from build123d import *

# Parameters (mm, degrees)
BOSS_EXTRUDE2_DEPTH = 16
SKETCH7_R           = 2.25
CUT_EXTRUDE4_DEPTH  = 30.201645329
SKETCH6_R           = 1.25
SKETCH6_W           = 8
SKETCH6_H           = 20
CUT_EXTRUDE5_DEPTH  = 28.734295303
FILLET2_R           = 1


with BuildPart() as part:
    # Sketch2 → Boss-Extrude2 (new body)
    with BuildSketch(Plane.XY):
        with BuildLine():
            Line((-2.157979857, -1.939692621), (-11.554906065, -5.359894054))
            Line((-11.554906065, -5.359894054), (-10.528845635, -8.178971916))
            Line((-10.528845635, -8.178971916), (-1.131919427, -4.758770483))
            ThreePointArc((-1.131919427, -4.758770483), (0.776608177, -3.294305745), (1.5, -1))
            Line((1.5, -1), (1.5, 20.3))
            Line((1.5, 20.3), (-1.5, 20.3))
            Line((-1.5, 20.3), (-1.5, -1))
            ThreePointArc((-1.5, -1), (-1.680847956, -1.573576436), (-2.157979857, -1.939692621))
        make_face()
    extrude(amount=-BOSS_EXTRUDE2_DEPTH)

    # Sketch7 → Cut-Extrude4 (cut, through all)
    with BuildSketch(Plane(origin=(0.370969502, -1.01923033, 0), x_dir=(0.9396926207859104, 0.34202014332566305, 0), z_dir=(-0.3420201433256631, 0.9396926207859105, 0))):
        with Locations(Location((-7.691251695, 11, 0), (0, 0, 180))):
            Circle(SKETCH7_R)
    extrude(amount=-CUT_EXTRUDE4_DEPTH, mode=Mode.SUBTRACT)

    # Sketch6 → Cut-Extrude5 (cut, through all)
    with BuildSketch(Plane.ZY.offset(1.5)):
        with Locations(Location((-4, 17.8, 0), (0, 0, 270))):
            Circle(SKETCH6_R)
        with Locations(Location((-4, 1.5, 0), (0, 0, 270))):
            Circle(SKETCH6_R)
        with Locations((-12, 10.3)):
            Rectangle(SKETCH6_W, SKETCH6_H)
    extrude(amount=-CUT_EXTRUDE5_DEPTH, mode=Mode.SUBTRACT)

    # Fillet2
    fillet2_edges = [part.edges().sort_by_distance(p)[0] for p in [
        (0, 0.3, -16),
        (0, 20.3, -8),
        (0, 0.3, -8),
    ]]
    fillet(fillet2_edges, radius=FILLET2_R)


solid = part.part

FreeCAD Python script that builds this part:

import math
import FreeCAD as App
import Part
import Sketcher
from FreeCAD import Vector
Q = App.Units.Quantity


def edges_at(feature, points):
    """Names of the edges that pass closest to the given points."""
    edges = feature.Shape.Edges
    near = lambda p: min(range(len(edges)), key=lambda i: edges[i].distToShape(Part.Vertex(*p))[0])
    return sorted({f"Edge{near(p) + 1}" for p in points})

doc = App.newDocument("Part")
body = doc.addObject("PartDesign::Body", "Body")

# Sketch on XY plane
sketch1 = body.newObject("Sketcher::SketchObject", "Sketch")
sketch1.AttachmentSupport = (doc.getObject("XY_Plane"), [""])
sketch1.MapMode = "FlatFace"
sketch1.addGeometry([
    Part.LineSegment(Vector(-2.2, -1.9, 0), Vector(-11.6, -5.4, 0)),  # 0
    Part.LineSegment(Vector(-11.6, -5.4, 0), Vector(-10.5, -8.2, 0)),  # 1
    Part.LineSegment(Vector(-10.5, -8.2, 0), Vector(-1.1, -4.8, 0)),  # 2
    Part.ArcOfCircle(Part.Circle(Vector(-2.5, -1, 0), Vector(0, 0, 1), 4), math.radians(-70), math.radians(0)),  # 3
    Part.LineSegment(Vector(1.5, -1, 0), Vector(1.5, 20.3, 0)),  # 4
    Part.LineSegment(Vector(1.5, 20.3, 0), Vector(-1.5, 20.3, 0)),  # 5
    Part.LineSegment(Vector(-1.5, 20.3, 0), Vector(-1.5, -1, 0)),  # 6
    Part.ArcOfCircle(Part.Circle(Vector(-2.5, -1, 0), Vector(0, 0, 1), 1), math.radians(-70), math.radians(0)),  # 7
], False)
sketch1.addConstraint([
    Sketcher.Constraint("Coincident", 0, 2, 1, 1),
    Sketcher.Constraint("Coincident", 1, 2, 2, 1),
    Sketcher.Constraint("Tangent", 2, 2, 3, 1),
    Sketcher.Constraint("Tangent", 3, 2, 4, 1),
    Sketcher.Constraint("Coincident", 4, 2, 5, 1),
    Sketcher.Constraint("Coincident", 5, 2, 6, 1),
    Sketcher.Constraint("Tangent", 6, 2, 7, 2),
    Sketcher.Constraint("Tangent", 7, 1, 0, 1),
    Sketcher.Constraint("Vertical", 4),
    Sketcher.Constraint("Horizontal", 5),
    Sketcher.Constraint("Vertical", 6),
    Sketcher.Constraint("Coincident", 7, 3, 3, 3),
    Sketcher.Constraint("Perpendicular", 0, 1),
    Sketcher.Constraint("Perpendicular", 1, 2),
    Sketcher.Constraint("Radius", 3, 4.0),
    Sketcher.Constraint("Radius", 7, 1.0),
    Sketcher.Constraint("Angle", 0, Q("-160 deg")),
    Sketcher.Constraint("Distance", 0, 10.0),
    Sketcher.Constraint("DistanceY", 4, 1, 4, 2, 21.3),
    Sketcher.Constraint("DistanceY", 3, 3, -1, 1, 1.0),
    Sketcher.Constraint("DistanceX", 3, 3, -1, 1, 2.5),
])
pad1 = body.newObject("PartDesign::Pad", "Pad")
pad1.Profile = sketch1
pad1.Length = 16
pad1.Reversed = True

# Sketch on an angled plane
sketch2 = body.newObject("Sketcher::SketchObject", "Sketch001")
sketch2.Placement = App.Placement(Vector(0.37097, -1.01923, 0), App.Rotation(Vector(0.939692621, 0.342020143, 0), Vector(0, 0, -1), Vector(-0.342020143, 0.939692621, 0), "ZXY"))
sketch2.addGeometry(Part.Circle(Vector(-7.7, 11, 0), Vector(0, 0, 1), 2.2), False)
sketch2.addConstraint([
    Sketcher.Constraint("Diameter", 0, 4.5),
    Sketcher.Constraint("DistanceY", -1, 1, 0, 3, 11.0),
    Sketcher.Constraint("DistanceX", 0, 3, -1, 1, 7.691252),
])
pocket1 = body.newObject("PartDesign::Pocket", "Pocket")
pocket1.Profile = sketch2
pocket1.Type = "ThroughAll"

# Sketch on YZ plane
sketch3 = body.newObject("Sketcher::SketchObject", "Sketch002")
sketch3.AttachmentSupport = (doc.getObject("YZ_Plane"), [""])
sketch3.MapMode = "FlatFace"
sketch3.AttachmentOffset = App.Placement(Vector(0, 0, -1.5), App.Rotation())
sketch3.addGeometry([
    Part.Circle(Vector(17.8, -4, 0), Vector(0, 0, 1), 1.2),  # 0
    Part.Circle(Vector(1.5, -4, 0), Vector(0, 0, 1), 1.2),  # 1
    Part.LineSegment(Vector(20.3, -16, 0), Vector(0.3, -16, 0)),  # 2
    Part.LineSegment(Vector(0.3, -16, 0), Vector(0.3, -8, 0)),  # 3
    Part.LineSegment(Vector(0.3, -8, 0), Vector(20.3, -8, 0)),  # 4
    Part.LineSegment(Vector(20.3, -8, 0), Vector(20.3, -16, 0)),  # 5
], False)
sketch3.addConstraint([
    Sketcher.Constraint("Coincident", 2, 2, 3, 1),
    Sketcher.Constraint("Coincident", 3, 2, 4, 1),
    Sketcher.Constraint("Coincident", 4, 2, 5, 1),
    Sketcher.Constraint("Coincident", 5, 2, 2, 1),
    Sketcher.Constraint("Horizontal", 2),
    Sketcher.Constraint("Vertical", 3),
    Sketcher.Constraint("Horizontal", 4),
    Sketcher.Constraint("Vertical", 5),
    Sketcher.Constraint("Equal", 0, 1),
    Sketcher.Constraint("Horizontal", 0, 3, 1, 3),
    Sketcher.Constraint("Diameter", 0, 2.5),
    Sketcher.Constraint("DistanceX", 2, 2, 2, 1, 20.0),
    Sketcher.Constraint("DistanceY", 3, 1, 3, 2, 8.0),
    Sketcher.Constraint("DistanceY", 0, 3, -1, 1, 4.0),
    Sketcher.Constraint("DistanceY", 2, 2, -1, 1, 16.0),
    Sketcher.Constraint("DistanceX", -1, 1, 0, 3, 17.8),
    Sketcher.Constraint("DistanceX", -1, 1, 1, 3, 1.5),
    Sketcher.Constraint("DistanceX", -1, 1, 2, 2, 0.3),
])
pocket2 = body.newObject("PartDesign::Pocket", "Pocket001")
pocket2.Profile = sketch3
pocket2.Type = "ThroughAll"
pocket2.Reversed = True
doc.recompute()

fillet = body.newObject("PartDesign::Fillet", "Fillet")
fillet.Base = (pocket2, edges_at(pocket2, [(0, 0.3, -16), (0, 20.3, -8), (0, 0.3, -8)]))
fillet.Radius = 1

doc.recompute()
